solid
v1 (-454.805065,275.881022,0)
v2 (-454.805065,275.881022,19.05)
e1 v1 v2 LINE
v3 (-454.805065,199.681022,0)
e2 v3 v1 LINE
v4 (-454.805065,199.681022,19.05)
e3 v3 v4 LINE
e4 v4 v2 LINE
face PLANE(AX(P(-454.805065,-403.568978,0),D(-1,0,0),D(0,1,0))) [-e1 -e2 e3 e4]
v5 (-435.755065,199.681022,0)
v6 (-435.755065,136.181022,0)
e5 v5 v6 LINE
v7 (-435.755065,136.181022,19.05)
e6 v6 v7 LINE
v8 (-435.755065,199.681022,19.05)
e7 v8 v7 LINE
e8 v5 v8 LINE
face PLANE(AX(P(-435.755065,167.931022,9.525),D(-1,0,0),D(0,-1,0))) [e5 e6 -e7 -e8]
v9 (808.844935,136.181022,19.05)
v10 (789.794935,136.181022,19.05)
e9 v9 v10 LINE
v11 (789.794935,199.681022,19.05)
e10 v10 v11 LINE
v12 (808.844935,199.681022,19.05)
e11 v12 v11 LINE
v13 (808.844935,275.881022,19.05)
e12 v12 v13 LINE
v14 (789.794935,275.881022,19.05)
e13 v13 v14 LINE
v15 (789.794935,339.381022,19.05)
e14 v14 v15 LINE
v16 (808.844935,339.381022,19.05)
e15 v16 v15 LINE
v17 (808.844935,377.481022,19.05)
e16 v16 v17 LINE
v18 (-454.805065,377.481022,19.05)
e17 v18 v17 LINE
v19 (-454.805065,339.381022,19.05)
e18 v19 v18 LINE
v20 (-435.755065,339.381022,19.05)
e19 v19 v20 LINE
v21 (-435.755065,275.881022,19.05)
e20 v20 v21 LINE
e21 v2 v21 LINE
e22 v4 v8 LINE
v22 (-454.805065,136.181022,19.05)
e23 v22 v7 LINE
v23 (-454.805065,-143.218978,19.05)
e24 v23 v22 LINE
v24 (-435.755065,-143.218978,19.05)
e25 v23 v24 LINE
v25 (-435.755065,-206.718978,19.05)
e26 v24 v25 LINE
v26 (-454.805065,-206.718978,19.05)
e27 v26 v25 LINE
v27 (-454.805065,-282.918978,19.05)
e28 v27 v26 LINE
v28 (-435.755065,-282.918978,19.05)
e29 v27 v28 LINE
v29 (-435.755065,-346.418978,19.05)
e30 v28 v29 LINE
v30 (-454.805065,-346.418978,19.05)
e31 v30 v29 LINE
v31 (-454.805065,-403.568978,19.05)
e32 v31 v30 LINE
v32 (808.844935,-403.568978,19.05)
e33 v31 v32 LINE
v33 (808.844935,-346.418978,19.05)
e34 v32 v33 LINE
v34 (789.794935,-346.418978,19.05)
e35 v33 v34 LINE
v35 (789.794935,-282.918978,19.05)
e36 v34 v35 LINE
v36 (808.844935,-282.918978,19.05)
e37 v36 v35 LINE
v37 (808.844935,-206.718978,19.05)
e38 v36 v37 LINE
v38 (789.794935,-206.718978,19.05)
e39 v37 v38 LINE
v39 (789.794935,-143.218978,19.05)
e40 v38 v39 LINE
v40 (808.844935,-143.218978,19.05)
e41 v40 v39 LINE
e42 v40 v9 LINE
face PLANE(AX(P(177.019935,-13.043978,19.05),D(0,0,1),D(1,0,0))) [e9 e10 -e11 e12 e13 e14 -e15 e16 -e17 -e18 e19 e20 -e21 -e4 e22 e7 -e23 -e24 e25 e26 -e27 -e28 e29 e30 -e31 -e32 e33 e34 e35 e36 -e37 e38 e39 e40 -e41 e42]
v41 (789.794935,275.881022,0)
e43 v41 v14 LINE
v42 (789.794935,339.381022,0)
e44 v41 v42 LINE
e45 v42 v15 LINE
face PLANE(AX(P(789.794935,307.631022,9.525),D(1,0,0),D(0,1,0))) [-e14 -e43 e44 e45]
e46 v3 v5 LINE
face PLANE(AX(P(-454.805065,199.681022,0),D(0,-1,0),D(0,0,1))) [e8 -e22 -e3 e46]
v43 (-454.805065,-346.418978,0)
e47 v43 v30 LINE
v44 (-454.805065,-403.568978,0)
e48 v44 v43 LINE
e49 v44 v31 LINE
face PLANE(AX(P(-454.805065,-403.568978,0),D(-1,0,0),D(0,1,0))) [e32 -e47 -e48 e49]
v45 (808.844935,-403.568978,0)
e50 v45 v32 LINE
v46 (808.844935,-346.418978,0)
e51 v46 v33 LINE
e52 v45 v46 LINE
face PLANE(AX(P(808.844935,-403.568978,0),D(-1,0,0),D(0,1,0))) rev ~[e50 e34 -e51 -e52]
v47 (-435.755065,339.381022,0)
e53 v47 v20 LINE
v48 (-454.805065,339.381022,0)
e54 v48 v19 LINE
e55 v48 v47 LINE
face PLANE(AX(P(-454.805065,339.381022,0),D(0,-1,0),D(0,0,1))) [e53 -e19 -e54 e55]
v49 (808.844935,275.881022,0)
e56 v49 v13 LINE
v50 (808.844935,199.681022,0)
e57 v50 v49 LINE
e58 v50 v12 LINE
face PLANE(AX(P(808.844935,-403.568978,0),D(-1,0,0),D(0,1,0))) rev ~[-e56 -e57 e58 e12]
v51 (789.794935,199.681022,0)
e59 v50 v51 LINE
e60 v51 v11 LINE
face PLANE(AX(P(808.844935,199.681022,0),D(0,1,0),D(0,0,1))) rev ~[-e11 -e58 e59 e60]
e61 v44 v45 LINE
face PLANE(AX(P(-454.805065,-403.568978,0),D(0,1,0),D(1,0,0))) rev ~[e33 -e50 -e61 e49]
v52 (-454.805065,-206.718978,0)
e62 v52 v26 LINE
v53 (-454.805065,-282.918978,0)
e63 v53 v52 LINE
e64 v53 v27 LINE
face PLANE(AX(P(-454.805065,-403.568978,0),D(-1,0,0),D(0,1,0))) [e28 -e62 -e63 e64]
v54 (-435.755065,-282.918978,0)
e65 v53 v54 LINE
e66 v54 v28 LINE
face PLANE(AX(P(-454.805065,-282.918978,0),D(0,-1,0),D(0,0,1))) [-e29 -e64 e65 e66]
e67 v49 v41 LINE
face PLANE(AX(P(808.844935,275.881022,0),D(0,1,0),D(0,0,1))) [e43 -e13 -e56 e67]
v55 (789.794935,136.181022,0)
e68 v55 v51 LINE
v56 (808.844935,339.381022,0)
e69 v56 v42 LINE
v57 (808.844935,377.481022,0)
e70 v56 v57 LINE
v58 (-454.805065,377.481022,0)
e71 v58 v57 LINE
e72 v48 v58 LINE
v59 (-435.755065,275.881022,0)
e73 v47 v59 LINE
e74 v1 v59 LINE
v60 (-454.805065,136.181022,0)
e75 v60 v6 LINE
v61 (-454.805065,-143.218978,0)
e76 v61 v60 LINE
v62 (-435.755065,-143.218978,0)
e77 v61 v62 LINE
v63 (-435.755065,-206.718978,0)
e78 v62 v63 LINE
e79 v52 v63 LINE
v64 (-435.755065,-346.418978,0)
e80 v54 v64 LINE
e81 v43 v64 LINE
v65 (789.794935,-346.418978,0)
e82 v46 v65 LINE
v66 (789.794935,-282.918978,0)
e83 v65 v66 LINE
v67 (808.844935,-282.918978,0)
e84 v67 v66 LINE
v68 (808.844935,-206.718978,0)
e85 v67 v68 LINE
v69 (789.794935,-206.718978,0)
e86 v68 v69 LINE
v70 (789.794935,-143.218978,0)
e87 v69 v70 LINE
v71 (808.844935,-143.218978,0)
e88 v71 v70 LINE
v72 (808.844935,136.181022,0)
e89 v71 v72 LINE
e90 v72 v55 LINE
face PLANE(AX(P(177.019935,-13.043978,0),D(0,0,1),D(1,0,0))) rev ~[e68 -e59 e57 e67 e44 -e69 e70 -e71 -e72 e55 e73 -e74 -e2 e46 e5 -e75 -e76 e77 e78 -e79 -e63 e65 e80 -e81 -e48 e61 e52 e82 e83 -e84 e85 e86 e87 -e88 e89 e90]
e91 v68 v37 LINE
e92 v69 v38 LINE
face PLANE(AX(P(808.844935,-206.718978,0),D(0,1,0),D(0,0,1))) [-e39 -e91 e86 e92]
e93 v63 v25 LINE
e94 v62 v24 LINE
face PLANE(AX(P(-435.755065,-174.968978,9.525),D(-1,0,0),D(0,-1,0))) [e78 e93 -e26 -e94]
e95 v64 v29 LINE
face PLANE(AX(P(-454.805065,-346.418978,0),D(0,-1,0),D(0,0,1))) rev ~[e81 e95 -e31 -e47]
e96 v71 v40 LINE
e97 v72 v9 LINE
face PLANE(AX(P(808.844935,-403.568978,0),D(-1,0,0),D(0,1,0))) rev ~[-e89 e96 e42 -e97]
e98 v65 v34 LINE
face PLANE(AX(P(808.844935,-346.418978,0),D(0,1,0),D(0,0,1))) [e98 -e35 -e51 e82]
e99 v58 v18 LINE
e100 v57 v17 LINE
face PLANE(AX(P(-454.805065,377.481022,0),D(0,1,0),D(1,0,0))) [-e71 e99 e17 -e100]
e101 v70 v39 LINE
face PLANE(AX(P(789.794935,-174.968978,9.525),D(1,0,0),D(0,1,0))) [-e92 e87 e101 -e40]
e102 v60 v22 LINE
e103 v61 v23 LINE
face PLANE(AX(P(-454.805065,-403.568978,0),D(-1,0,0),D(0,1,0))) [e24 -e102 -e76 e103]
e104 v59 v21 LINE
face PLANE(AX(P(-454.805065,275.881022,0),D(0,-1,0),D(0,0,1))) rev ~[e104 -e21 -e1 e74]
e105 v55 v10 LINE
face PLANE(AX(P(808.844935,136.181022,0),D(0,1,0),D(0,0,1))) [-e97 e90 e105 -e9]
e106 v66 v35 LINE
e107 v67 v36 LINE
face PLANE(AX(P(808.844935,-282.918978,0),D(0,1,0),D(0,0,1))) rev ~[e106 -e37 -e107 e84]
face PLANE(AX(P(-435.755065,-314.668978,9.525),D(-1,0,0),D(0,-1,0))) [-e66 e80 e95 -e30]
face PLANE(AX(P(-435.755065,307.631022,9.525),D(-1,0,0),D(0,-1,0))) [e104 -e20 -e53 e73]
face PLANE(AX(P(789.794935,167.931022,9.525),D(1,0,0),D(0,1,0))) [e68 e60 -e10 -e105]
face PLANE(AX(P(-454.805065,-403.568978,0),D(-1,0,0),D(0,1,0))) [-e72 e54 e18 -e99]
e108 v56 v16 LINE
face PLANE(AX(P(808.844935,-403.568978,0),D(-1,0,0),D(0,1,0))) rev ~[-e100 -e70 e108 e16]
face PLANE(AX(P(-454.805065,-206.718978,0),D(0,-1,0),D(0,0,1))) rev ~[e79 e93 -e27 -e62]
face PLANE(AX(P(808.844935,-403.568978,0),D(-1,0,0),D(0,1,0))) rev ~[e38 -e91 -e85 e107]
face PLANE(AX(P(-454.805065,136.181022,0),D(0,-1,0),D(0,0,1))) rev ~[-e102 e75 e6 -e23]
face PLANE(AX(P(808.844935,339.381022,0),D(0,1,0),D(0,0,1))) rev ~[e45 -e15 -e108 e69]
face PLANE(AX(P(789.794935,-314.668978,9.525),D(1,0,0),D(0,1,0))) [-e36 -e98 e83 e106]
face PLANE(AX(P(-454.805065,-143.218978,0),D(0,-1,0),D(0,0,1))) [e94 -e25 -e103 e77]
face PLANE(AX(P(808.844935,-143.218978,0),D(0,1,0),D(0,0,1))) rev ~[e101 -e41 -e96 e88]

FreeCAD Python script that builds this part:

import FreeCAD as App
import Part
import Sketcher
from FreeCAD import Vector
Q = App.Units.Quantity


def add_polygon(sketch, points):
    """Adds a closed chain of lines whose ends are joined by coincident constraints."""
    first, n = sketch.GeometryCount, len(points)
    for a, b in zip(points, points[1:] + points[:1]):
        sketch.addGeometry(Part.LineSegment(App.Vector(*a, 0), App.Vector(*b, 0)), False)
    for i in range(n):
        sketch.addConstraint(Sketcher.Constraint("Coincident", first + i, 2, first + (i + 1) % n, 1))

doc = App.newDocument("Part")
params = doc.addObject("Spreadsheet::Sheet", "Params")
for row, (alias, value) in enumerate([
    ("sketch1_width", "49.75 in"),
    ("sketch1_height", "30.75 in"),
    ("pad1_length", "0.75 in"),
    ("sketch2_width", "2.5 in"),
    ("sketch2_height", "0.75 in"),
    ("pocket1_length", "0.75 in"),
    ("sketch3_width", "2.5 in"),
    ("sketch3_height", "0.75 in"),
    ("pocket2_length", "0.75 in"),
], start=1):
    params.set(f"A{row}", alias)
    params.set(f"B{row}", "=" + value)
    params.setAlias(f"B{row}", alias)

body = doc.addObject("PartDesign::Body", "Body")

# Sketch on XY plane
sketch1 = body.newObject("Sketcher::SketchObject", "Sketch")
sketch1.AttachmentSupport = (doc.getObject("XY_Plane"), [""])
sketch1.MapMode = "FlatFace"
add_polygon(sketch1, [(-455, 377), (-455, -404), (809, -404), (809, 377)])  # lines 0-3
sketch1.addConstraint(Sketcher.Constraint("Vertical", 0))
sketch1.addConstraint(Sketcher.Constraint("Horizontal", 1))
sketch1.addConstraint(Sketcher.Constraint("Vertical", 2))
sketch1.addConstraint(Sketcher.Constraint("Horizontal", 3))
sketch1.addConstraint(Sketcher.Constraint("DistanceX", 1, 1, 1, 2, Q("49.75 in")))
sketch1.addConstraint(Sketcher.Constraint("DistanceY", 0, 2, 0, 1, Q("30.75 in")))
sketch1.addConstraint(Sketcher.Constraint("DistanceY", 0, 2, -1, 1, Q("403.568978 mm")))
sketch1.addConstraint(Sketcher.Constraint("DistanceX", 0, 2, -1, 1, Q("454.805065 mm")))
sketch1.setExpression("Constraints[8]", "Params.sketch1_width")
sketch1.setExpression("Constraints[9]", "Params.sketch1_height")
pad1 = body.newObject("PartDesign::Pad", "Pad")
pad1.Profile = sketch1
pad1.setExpression("Length", "Params.pad1_length")

# Sketch on YZ plane
sketch2 = body.newObject("Sketcher::SketchObject", "Sketch001")
sketch2.AttachmentSupport = (doc.getObject("YZ_Plane"), [""])
sketch2.MapMode = "FlatFace"
sketch2.AttachmentOffset = App.Placement(Vector(0, 0, 808.844935), App.Rotation())
add_polygon(sketch2, [(276, 19), (276, 0), (339, 0), (339, 19)])  # lines 0-3
add_polygon(sketch2, [(136, 19), (136, 0), (200, 0), (200, 19)])  # lines 4-7
add_polygon(sketch2, [(-207, 19), (-207, 0), (-143, 0), (-143, 19)])  # lines 8-11
add_polygon(sketch2, [(-346, 19), (-346, 0), (-283, 0), (-283, 19)])  # lines 12-15
sketch2.addConstraint(Sketcher.Constraint("Vertical", 0))
sketch2.addConstraint(Sketcher.Constraint("Horizontal", 1))
sketch2.addConstraint(Sketcher.Constraint("Vertical", 2))
sketch2.addConstraint(Sketcher.Constraint("Horizontal", 3))
sketch2.addConstraint(Sketcher.Constraint("Vertical", 4))
sketch2.addConstraint(Sketcher.Constraint("Horizontal", 5))
sketch2.addConstraint(Sketcher.Constraint("Vertical", 6))
sketch2.addConstraint(Sketcher.Constraint("Horizontal", 7))
sketch2.addConstraint(Sketcher.Constraint("Vertical", 8))
sketch2.addConstraint(Sketcher.Constraint("Horizontal", 9))
sketch2.addConstraint(Sketcher.Constraint("Vertical", 10))
sketch2.addConstraint(Sketcher.Constraint("Horizontal", 11))
sketch2.addConstraint(Sketcher.Constraint("Vertical", 12))
sketch2.addConstraint(Sketcher.Constraint("Horizontal", 13))
sketch2.addConstraint(Sketcher.Constraint("Vertical", 14))
sketch2.addConstraint(Sketcher.Constraint("Horizontal", 15))
sketch2.addConstraint(Sketcher.Constraint("PointOnObject", 0, 2, -1))
sketch2.addConstraint(Sketcher.Constraint("PointOnObject", 4, 2, -1))
sketch2.addConstraint(Sketcher.Constraint("PointOnObject", 8, 2, -1))
sketch2.addConstraint(Sketcher.Constraint("PointOnObject", 12, 2, -1))
sketch2.addConstraint(Sketcher.Constraint("Horizontal", 3, 2, 6, 2))
sketch2.addConstraint(Sketcher.Constraint("Horizontal", 7, 2, 10, 2))
sketch2.addConstraint(Sketcher.Constraint("Horizontal", 11, 2, 14, 2))
sketch2.addConstraint(Sketcher.Constraint("Equal", 3, 5))
sketch2.addConstraint(Sketcher.Constraint("Equal", 7, 9))
sketch2.addConstraint(Sketcher.Constraint("Equal", 11, 13))
sketch2.addConstraint(Sketcher.Constraint("DistanceX", 1, 1, 1, 2, Q("2.5 in")))
sketch2.addConstraint(Sketcher.Constraint("DistanceX", 4, 2, 1, 2, Q("8 in")))
sketch2.addConstraint(Sketcher.Constraint("DistanceX", 8, 2, 5, 2, Q("16 in")))
sketch2.addConstraint(Sketcher.Constraint("DistanceX", 12, 2, 9, 2, Q("8 in")))
sketch2.addConstraint(Sketcher.Constraint("DistanceY", 0, 2, 0, 1, Q("0.75 in")))
sketch2.addConstraint(Sketcher.Constraint("DistanceX", -1, 1, 0, 2, Q("275.881022 mm")))
sketch2.setExpression("Constraints[42]", "Params.sketch2_width")
sketch2.setExpression("Constraints[46]", "Params.sketch2_height")
pocket1 = body.newObject("PartDesign::Pocket", "Pocket")
pocket1.Profile = sketch2
pocket1.setExpression("Length", "Params.pocket1_length")

# Sketch on YZ plane
sketch3 = body.newObject("Sketcher::SketchObject", "Sketch002")
sketch3.AttachmentSupport = (doc.getObject("YZ_Plane"), [""])
sketch3.MapMode = "FlatFace"
sketch3.AttachmentOffset = App.Placement(Vector(0, 0, -454.805065), App.Rotation())
add_polygon(sketch3, [(200, 19), (200, 0), (136, 0), (136, 19)])  # lines 0-3
add_polygon(sketch3, [(-143, 19), (-143, 0), (-207, 0), (-207, 19)])  # lines 4-7
add_polygon(sketch3, [(-283, 19), (-283, 0), (-346, 0), (-346, 19)])  # lines 8-11
add_polygon(sketch3, [(339, 19), (339, 0), (276, 0), (276, 19)])  # lines 12-15
sketch3.addConstraint(Sketcher.Constraint("Vertical", 0))
sketch3.addConstraint(Sketcher.Constraint("Horizontal", 1))
sketch3.addConstraint(Sketcher.Constraint("Vertical", 2))
sketch3.addConstraint(Sketcher.Constraint("Horizontal", 3))
sketch3.addConstraint(Sketcher.Constraint("Vertical", 4))
sketch3.addConstraint(Sketcher.Constraint("Horizontal", 5))
sketch3.addConstraint(Sketcher.Constraint("Vertical", 6))
sketch3.addConstraint(Sketcher.Constraint("Horizontal", 7))
sketch3.addConstraint(Sketcher.Constraint("Vertical", 8))
sketch3.addConstraint(Sketcher.Constraint("Horizontal", 9))
sketch3.addConstraint(Sketcher.Constraint("Vertical", 10))
sketch3.addConstraint(Sketcher.Constraint("Horizontal", 11))
sketch3.addConstraint(Sketcher.Constraint("Vertical", 12))
sketch3.addConstraint(Sketcher.Constraint("Horizontal", 13))
sketch3.addConstraint(Sketcher.Constraint("Vertical", 14))
sketch3.addConstraint(Sketcher.Constraint("Horizontal", 15))
sketch3.addConstraint(Sketcher.Constraint("PointOnObject", 0, 2, -1))
sketch3.addConstraint(Sketcher.Constraint("PointOnObject", 4, 2, -1))
sketch3.addConstraint(Sketcher.Constraint("PointOnObject", 8, 2, -1))
sketch3.addConstraint(Sketcher.Constraint("PointOnObject", 12, 2, -1))
sketch3.addConstraint(Sketcher.Constraint("Horizontal", 3, 2, 6, 2))
sketch3.addConstraint(Sketcher.Constraint("Horizontal", 7, 2, 10, 2))
sketch3.addConstraint(Sketcher.Constraint("Horizontal", 11, 2, 14, 2))
sketch3.addConstraint(Sketcher.Constraint("Equal", 3, 5))
sketch3.addConstraint(Sketcher.Constraint("Equal", 7, 9))
sketch3.addConstraint(Sketcher.Constraint("Equal", 11, 13))
sketch3.addConstraint(Sketcher.Constraint("DistanceX", 1, 2, 1, 1, Q("2.5 in")))
sketch3.addConstraint(Sketcher.Constraint("DistanceX", 4, 2, 1, 2, Q("11 in")))
sketch3.addConstraint(Sketcher.Constraint("DistanceX", 8, 2, 5, 2, Q("3 in")))
sketch3.addConstraint(Sketcher.Constraint("DistanceX", 1, 2, 12, 2, Q("8 in")))
sketch3.addConstraint(Sketcher.Constraint("DistanceY", 0, 2, 0, 1, Q("0.75 in")))
sketch3.addConstraint(Sketcher.Constraint("DistanceX", 4, 2, -1, 1, Q("143.218978 mm")))
sketch3.setExpression("Constraints[42]", "Params.sketch3_width")
sketch3.setExpression("Constraints[46]", "Params.sketch3_height")
pocket2 = body.newObject("PartDesign::Pocket", "Pocket001")
pocket2.Profile = sketch3
pocket2.setExpression("Length", "Params.pocket2_length")
pocket2.Reversed = True

doc.recompute()
